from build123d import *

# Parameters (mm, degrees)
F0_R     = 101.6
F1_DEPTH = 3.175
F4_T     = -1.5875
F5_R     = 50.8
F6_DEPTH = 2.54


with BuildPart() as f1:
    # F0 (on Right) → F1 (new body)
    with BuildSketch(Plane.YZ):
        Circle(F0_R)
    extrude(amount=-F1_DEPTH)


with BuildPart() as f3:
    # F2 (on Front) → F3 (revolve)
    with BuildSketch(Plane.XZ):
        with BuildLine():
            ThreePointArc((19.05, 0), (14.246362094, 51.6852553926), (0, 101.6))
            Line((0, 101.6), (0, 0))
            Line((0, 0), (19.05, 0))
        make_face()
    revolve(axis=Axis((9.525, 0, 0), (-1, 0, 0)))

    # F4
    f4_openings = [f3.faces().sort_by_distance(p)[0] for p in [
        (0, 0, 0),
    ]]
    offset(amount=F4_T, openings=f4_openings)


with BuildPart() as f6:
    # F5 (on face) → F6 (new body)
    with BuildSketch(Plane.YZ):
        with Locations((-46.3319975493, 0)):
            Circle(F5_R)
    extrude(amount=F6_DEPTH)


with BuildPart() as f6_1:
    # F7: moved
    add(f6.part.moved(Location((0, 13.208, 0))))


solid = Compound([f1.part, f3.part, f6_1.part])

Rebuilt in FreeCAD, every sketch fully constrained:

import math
import FreeCAD as App
import Part
import Sketcher
from FreeCAD import Vector
Q = App.Units.Quantity


def faces_at(feature, points):
    """Names of the faces that lie closest to the given points."""
    faces = feature.Shape.Faces
    near = lambda p: min(range(len(faces)), key=lambda i: faces[i].distToShape(Part.Vertex(*p))[0])
    return sorted({f"Face{near(p) + 1}" for p in points})

doc = App.newDocument("Part")
params = doc.addObject("Spreadsheet::Sheet", "Params")
for row, (alias, value) in enumerate([
    ("sketch1_diameter", "8 in"),
    ("pad1_length", "0.125 in"),
    ("sketch2_height", "4 in"),
    ("sketch2_width", "0.75 in"),
    ("revolution_angle", "360 deg"),
    ("thickness_wall", "0.0625 in"),
    ("sketch3_diameter", "4 in"),
    ("pad2_length", "0.1 in"),
], start=1):
    params.set(f"A{row}", alias)
    params.set(f"B{row}", "=" + value)
    params.setAlias(f"B{row}", alias)

body = doc.addObject("PartDesign::Body", "Body")

# Sketch on YZ plane
sketch1 = body.newObject("Sketcher::SketchObject", "Sketch")
sketch1.AttachmentSupport = (doc.getObject("YZ_Plane"), [""])
sketch1.MapMode = "FlatFace"
sketch1.addGeometry(Part.Circle(Vector(0, 0, 0), Vector(0, 0, 1), 101.6), False)
sketch1.addConstraint(Sketcher.Constraint("Coincident", 0, 3, -1, 1))
sketch1.addConstraint(Sketcher.Constraint("Diameter", 0, Q("8 in")))
sketch1.setExpression("Constraints[1]", "Params.sketch1_diameter")
pad1 = body.newObject("PartDesign::Pad", "Pad")
pad1.Profile = sketch1
pad1.setExpression("Length", "Params.pad1_length")
pad1.Reversed = True
body2 = doc.addObject("PartDesign::Body", "Body001")

# Sketch on XZ plane
sketch2 = body2.newObject("Sketcher::SketchObject", "Sketch001")
sketch2.AttachmentSupport = (doc.getObject("XZ_Plane001"), [""])
sketch2.MapMode = "FlatFace"
sketch2.addGeometry(Part.ArcOfCircle(Part.Circle(Vector(-261.408333, 0, 0), Vector(0, 0, 1), 280.458333), math.radians(0), math.radians(21.239311)), False)
sketch2.addGeometry(Part.LineSegment(Vector(0, 101.6, 0), Vector(0, 0, 0)), False)
sketch2.addGeometry(Part.LineSegment(Vector(0, 0, 0), Vector(19.05, 0, 0)), False)
sketch2.addConstraint(Sketcher.Constraint("Coincident", 0, 2, 1, 1))
sketch2.addConstraint(Sketcher.Constraint("Coincident", 1, 2, 2, 1))
sketch2.addConstraint(Sketcher.Constraint("Coincident", 2, 2, 0, 1))
sketch2.addConstraint(Sketcher.Constraint("Vertical", 1))
sketch2.addConstraint(Sketcher.Constraint("Horizontal", 2))
sketch2.addConstraint(Sketcher.Constraint("Coincident", 1, 2, -1, 1))
sketch2.addConstraint(Sketcher.Constraint("PointOnObject", 0, 3, -1))
sketch2.addConstraint(Sketcher.Constraint("DistanceY", 1, 2, 1, 1, Q("4 in")))
sketch2.addConstraint(Sketcher.Constraint("DistanceX", 2, 1, 2, 2, Q("0.75 in")))
sketch2.setExpression("Constraints[7]", "Params.sketch2_height")
sketch2.setExpression("Constraints[8]", "Params.sketch2_width")
revolution = body2.newObject("PartDesign::Revolution", "Revolution")
revolution.Profile = sketch2
revolution.ReferenceAxis = (sketch2, ["H_Axis"])
revolution.setExpression("Angle", "Params.revolution_angle")
doc.recompute()

thickness = body2.newObject("PartDesign::Thickness", "Thickness")
thickness.Base = (revolution, faces_at(revolution, [(0, 0, 0)]))
thickness.setExpression("Value", "Params.thickness_wall")
thickness.Reversed = True
thickness.Join = "Arc"
body3 = doc.addObject("PartDesign::Body", "Body002")

# Sketch on YZ plane
sketch3 = body3.newObject("Sketcher::SketchObject", "Sketch002")
sketch3.AttachmentSupport = (doc.getObject("YZ_Plane002"), [""])
sketch3.MapMode = "FlatFace"
sketch3.addGeometry(Part.Circle(Vector(-46.331998, 0, 0), Vector(0, 0, 1), 50.8), False)
sketch3.addConstraint(Sketcher.Constraint("PointOnObject", 0, 3, -1))
sketch3.addConstraint(Sketcher.Constraint("Diameter", 0, Q("4 in")))
sketch3.addConstraint(Sketcher.Constraint("DistanceX", 0, 3, -1, 1, Q("46.331998 mm")))
sketch3.setExpression("Constraints[1]", "Params.sketch3_diameter")
pad2 = body3.newObject("PartDesign::Pad", "Pad001")
pad2.Profile = sketch3
pad2.setExpression("Length", "Params.pad2_length")
body4 = doc.addObject("PartDesign::Body", "Body003")
doc.recompute()

body3.Placement = App.Placement(Vector(0, 13.208, 0), App.Rotation(Vector(0, 0, 1), 0))
boolean = body4.newObject("PartDesign::Boolean", "Boolean")
boolean.Type = "Fuse"
boolean.addObjects([body3])

doc.recompute()
